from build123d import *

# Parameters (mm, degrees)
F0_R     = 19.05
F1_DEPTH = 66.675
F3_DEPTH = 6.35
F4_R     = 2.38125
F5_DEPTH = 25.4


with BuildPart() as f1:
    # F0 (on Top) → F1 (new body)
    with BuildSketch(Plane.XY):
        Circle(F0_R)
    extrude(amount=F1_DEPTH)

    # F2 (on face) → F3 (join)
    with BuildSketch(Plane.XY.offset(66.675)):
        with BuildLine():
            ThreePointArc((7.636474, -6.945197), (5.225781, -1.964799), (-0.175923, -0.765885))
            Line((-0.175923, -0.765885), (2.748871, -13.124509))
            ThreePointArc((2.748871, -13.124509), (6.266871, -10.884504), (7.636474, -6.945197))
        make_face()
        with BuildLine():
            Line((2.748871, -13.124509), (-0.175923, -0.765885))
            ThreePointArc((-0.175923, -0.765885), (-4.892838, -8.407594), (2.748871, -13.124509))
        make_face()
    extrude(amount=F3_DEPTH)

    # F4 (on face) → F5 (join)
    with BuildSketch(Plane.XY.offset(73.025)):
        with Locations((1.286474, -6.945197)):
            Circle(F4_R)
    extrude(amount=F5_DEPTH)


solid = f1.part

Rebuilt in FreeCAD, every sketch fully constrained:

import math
import FreeCAD as App
import Part
import Sketcher

V = App.Vector
Q = App.Units.Quantity

doc = App.newDocument("Part")
body = doc.addObject("PartDesign::Body", "Body")

# Sketch on XY plane
sketch1 = body.newObject("Sketcher::SketchObject", "Sketch")
sketch1.AttachmentSupport = (doc.getObject("XY_Plane"), [""])
sketch1.MapMode = "FlatFace"
sketch1.addGeometry(Part.Circle(V(0, 0, 0), V(0, 0, 1), 19), False)
sketch1.addConstraint(Sketcher.Constraint("Coincident", 0, 3, -1, 1))
sketch1.addConstraint(Sketcher.Constraint("Diameter", 0, Q("1.5 in")))
pad1 = body.newObject("PartDesign::Pad", "Pad")
pad1.Profile = sketch1
pad1.Length = Q("2.625 in")

# Sketch on XY plane
sketch2 = body.newObject("Sketcher::SketchObject", "Sketch001")
sketch2.AttachmentSupport = (doc.getObject("XY_Plane"), [""])
sketch2.MapMode = "FlatFace"
sketch2.AttachmentOffset = App.Placement(V(0, 0, 2.625 * 25.4), App.Rotation())
sketch2.addGeometry(Part.ArcOfCircle(Part.Circle(V(1, -7, 0), V(0, 0, 1), 6), math.radians(0), math.radians(103)), False)
sketch2.addGeometry(Part.ArcOfCircle(Part.Circle(V(1, -7, 0), V(0, 0, 1), 6), math.radians(103), math.radians(283)), False)
sketch2.addGeometry(Part.ArcOfCircle(Part.Circle(V(1, -7, 0), V(0, 0, 1), 6), math.radians(-77), math.radians(0)), False)
sketch2.addConstraint(Sketcher.Constraint("Tangent", 0, 2, 1, 1))
sketch2.addConstraint(Sketcher.Constraint("Tangent", 1, 2, 2, 1))
sketch2.addConstraint(Sketcher.Constraint("Tangent", 2, 2, 0, 1))
sketch2.addConstraint(Sketcher.Constraint("Horizontal", 1, 3, 2, 2))
sketch2.addConstraint(Sketcher.Constraint("Radius", 0, Q("0.25 in")))
sketch2.addConstraint(Sketcher.Constraint("DistanceX", 2, 3, 1, 2, Q("1.462399 mm")))
sketch2.addConstraint(Sketcher.Constraint("DistanceX", -1, 1, 2, 3, Q("1.286472 mm")))
sketch2.addConstraint(Sketcher.Constraint("DistanceY", 1, 2, -1, 1, Q("13.124509 mm")))
sketch2.addConstraint(Sketcher.Constraint("DistanceY", 2, 3, 0, 2, Q("6.179311 mm")))
pad2 = body.newObject("PartDesign::Pad", "Pad001")
pad2.Profile = sketch2
pad2.Length = Q("0.25 in")

# Sketch on XY plane
sketch3 = body.newObject("Sketcher::SketchObject", "Sketch002")
sketch3.AttachmentSupport = (doc.getObject("XY_Plane"), [""])
sketch3.MapMode = "FlatFace"
sketch3.AttachmentOffset = App.Placement(V(0, 0, 2.875 * 25.4), App.Rotation())
sketch3.addGeometry(Part.Circle(V(1.3, -6.9, 0), V(0, 0, 1), 2.4), False)
sketch3.addConstraint(Sketcher.Constraint("Diameter", 0, Q("0.1875 in")))
sketch3.addConstraint(Sketcher.Constraint("DistanceX", -1, 1, 0, 3, Q("1.286474 mm")))
sketch3.addConstraint(Sketcher.Constraint("DistanceY", 0, 3, -1, 1, Q("6.945197 mm")))
pad3 = body.newObject("PartDesign::Pad", "Pad002")
pad3.Profile = sketch3
pad3.Length = Q("1 in")

doc.recompute()
